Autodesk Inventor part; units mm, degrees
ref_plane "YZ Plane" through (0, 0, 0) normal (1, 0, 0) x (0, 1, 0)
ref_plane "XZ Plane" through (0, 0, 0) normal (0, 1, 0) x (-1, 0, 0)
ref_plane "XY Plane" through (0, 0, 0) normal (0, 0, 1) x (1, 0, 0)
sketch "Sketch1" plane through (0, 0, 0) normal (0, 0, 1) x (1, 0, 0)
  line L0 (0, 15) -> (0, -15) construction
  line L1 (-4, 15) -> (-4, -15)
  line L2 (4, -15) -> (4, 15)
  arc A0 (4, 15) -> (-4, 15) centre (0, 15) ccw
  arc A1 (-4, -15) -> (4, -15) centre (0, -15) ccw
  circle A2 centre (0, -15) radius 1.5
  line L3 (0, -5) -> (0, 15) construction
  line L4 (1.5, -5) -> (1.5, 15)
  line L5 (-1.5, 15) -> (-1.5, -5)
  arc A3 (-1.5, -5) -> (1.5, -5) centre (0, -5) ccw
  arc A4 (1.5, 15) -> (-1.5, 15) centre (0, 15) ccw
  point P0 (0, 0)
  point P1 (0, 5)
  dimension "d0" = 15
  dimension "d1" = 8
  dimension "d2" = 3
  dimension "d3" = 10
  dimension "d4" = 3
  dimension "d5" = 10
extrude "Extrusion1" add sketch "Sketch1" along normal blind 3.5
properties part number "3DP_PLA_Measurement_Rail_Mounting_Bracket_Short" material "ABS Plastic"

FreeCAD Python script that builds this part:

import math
import FreeCAD as App
import Part
import Sketcher
from FreeCAD import Vector
Q = App.Units.Quantity

doc = App.newDocument("Part")
body = doc.addObject("PartDesign::Body", "Body")

# Sketch on XY plane
sketch1 = body.newObject("Sketcher::SketchObject", "Sketch")
sketch1.AttachmentSupport = (doc.getObject("XY_Plane"), [""])
sketch1.MapMode = "FlatFace"
sketch1.addGeometry([
    Part.ArcOfCircle(Part.Circle(Vector(0, 15, 0), Vector(0, 0, 1), 4), math.radians(0), math.radians(180)),  # 0
    Part.LineSegment(Vector(-4, 15, 0), Vector(-4, -15, 0)),  # 1
    Part.ArcOfCircle(Part.Circle(Vector(0, -15, 0), Vector(0, 0, 1), 4), math.radians(180), math.radians(360)),  # 2
    Part.LineSegment(Vector(4, -15, 0), Vector(4, 15, 0)),  # 3
    Part.Circle(Vector(0, -15, 0), Vector(0, 0, 1), 1.5),  # 4
    Part.LineSegment(Vector(1.5, 15, 0), Vector(1.5, -5, 0)),  # 5
    Part.ArcOfCircle(Part.Circle(Vector(0, -5, 0), Vector(0, 0, 1), 1.5), math.radians(180), math.radians(360)),  # 6
    Part.LineSegment(Vector(-1.5, -5, 0), Vector(-1.5, 15, 0)),  # 7
    Part.ArcOfCircle(Part.Circle(Vector(0, 15, 0), Vector(0, 0, 1), 1.5), math.radians(0), math.radians(180)),  # 8
], False)
sketch1.addConstraint([
    Sketcher.Constraint("Tangent", 0, 2, 1, 1),
    Sketcher.Constraint("Tangent", 1, 2, 2, 1),
    Sketcher.Constraint("Tangent", 2, 2, 3, 1),
    Sketcher.Constraint("Tangent", 3, 2, 0, 1),
    Sketcher.Constraint("Tangent", 5, 2, 6, 2),
    Sketcher.Constraint("Tangent", 6, 1, 7, 1),
    Sketcher.Constraint("Tangent", 7, 2, 8, 2),
    Sketcher.Constraint("Tangent", 8, 1, 5, 1),
    Sketcher.Constraint("Vertical", 1),
    Sketcher.Constraint("Vertical", 3),
    Sketcher.Constraint("Vertical", 5),
    Sketcher.Constraint("Vertical", 7),
    Sketcher.Constraint("Coincident", 4, 3, 2, 3),
    Sketcher.Constraint("Coincident", 8, 3, 0, 3),
    Sketcher.Constraint("Equal", 4, 6),
    Sketcher.Constraint("Symmetric", 0, 3, 2, 3, -1, 1),
    Sketcher.Constraint("Diameter", 4, Q("3 mm")),
    Sketcher.Constraint("Radius", 0, Q("4 mm")),
    Sketcher.Constraint("DistanceY", -1, 1, 0, 3, Q("15 mm")),
    Sketcher.Constraint("DistanceY", 2, 3, 6, 3, Q("10 mm")),
])
pad1 = body.newObject("PartDesign::Pad", "Pad")
pad1.Profile = sketch1
pad1.Length = 3.5

doc.recompute()
